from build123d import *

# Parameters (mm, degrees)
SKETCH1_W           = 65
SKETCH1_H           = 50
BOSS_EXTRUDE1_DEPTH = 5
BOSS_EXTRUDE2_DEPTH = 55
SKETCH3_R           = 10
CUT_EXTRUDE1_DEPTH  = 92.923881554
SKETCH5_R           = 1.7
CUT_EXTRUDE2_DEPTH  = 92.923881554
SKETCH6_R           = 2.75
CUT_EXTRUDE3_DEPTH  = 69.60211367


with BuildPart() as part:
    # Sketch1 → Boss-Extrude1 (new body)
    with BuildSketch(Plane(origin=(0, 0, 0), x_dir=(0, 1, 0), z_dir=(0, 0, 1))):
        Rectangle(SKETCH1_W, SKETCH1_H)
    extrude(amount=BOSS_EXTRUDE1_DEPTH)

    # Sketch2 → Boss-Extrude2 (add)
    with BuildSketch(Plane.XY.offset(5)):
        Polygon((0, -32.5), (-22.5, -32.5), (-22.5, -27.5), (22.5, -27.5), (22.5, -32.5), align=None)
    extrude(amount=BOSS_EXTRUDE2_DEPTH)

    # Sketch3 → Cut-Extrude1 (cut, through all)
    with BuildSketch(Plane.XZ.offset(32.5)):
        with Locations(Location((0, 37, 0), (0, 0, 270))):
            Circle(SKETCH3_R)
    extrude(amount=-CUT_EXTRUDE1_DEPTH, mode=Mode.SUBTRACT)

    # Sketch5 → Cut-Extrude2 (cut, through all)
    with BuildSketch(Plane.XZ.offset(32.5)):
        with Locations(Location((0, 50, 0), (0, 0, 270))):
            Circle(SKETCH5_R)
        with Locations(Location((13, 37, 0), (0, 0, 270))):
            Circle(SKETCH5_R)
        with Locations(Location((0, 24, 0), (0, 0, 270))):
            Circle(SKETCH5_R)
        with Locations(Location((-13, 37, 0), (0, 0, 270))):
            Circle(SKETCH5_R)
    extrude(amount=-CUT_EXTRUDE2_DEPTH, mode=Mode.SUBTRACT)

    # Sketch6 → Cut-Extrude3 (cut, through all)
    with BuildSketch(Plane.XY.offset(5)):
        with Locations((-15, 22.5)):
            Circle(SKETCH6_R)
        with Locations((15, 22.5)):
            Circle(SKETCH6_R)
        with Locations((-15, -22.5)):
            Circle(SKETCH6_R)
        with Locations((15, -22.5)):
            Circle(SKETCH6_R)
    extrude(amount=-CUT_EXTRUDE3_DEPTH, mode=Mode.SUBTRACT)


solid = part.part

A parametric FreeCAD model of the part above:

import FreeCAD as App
import Part
import Sketcher
from FreeCAD import Vector

doc = App.newDocument("Part")
body = doc.addObject("PartDesign::Body", "Body")

# Sketch on XY plane
sketch1 = body.newObject("Sketcher::SketchObject", "Sketch")
sketch1.AttachmentSupport = (doc.getObject("XY_Plane"), [""])
sketch1.MapMode = "FlatFace"
sketch1.addGeometry([
    Part.LineSegment(Vector(-25, -32, 0), Vector(25, -32, 0)),
    Part.LineSegment(Vector(25, -32, 0), Vector(25, 32, 0)),
    Part.LineSegment(Vector(25, 32, 0), Vector(-25, 32, 0)),
    Part.LineSegment(Vector(-25, 32, 0), Vector(-25, -32, 0)),
], False)
sketch1.addConstraint([
    Sketcher.Constraint("Coincident", 0, 2, 1, 1),
    Sketcher.Constraint("Coincident", 1, 2, 2, 1),
    Sketcher.Constraint("Coincident", 2, 2, 3, 1),
    Sketcher.Constraint("Coincident", 3, 2, 0, 1),
    Sketcher.Constraint("Horizontal", 0),
    Sketcher.Constraint("Vertical", 1),
    Sketcher.Constraint("Horizontal", 2),
    Sketcher.Constraint("Vertical", 3),
    Sketcher.Constraint("Symmetric", 0, 2, 2, 2, -1, 1),
    Sketcher.Constraint("DistanceX", 0, 1, 0, 2, 50.0),
    Sketcher.Constraint("DistanceY", 1, 1, 1, 2, 65.0),
])
pad1 = body.newObject("PartDesign::Pad", "Pad")
pad1.Profile = sketch1
pad1.Length = 5

# Sketch on XY plane
sketch2 = body.newObject("Sketcher::SketchObject", "Sketch001")
sketch2.AttachmentSupport = (doc.getObject("XY_Plane"), [""])
sketch2.MapMode = "FlatFace"
sketch2.AttachmentOffset = App.Placement(Vector(0, 0, 5), App.Rotation())
sketch2.addGeometry([
    Part.LineSegment(Vector(-22, -32, 0), Vector(22, -32, 0)),
    Part.LineSegment(Vector(22, -32, 0), Vector(22, -28, 0)),
    Part.LineSegment(Vector(22, -28, 0), Vector(-22, -28, 0)),
    Part.LineSegment(Vector(-22, -28, 0), Vector(-22, -32, 0)),
], False)
sketch2.addConstraint([
    Sketcher.Constraint("Coincident", 0, 2, 1, 1),
    Sketcher.Constraint("Coincident", 1, 2, 2, 1),
    Sketcher.Constraint("Coincident", 2, 2, 3, 1),
    Sketcher.Constraint("Coincident", 3, 2, 0, 1),
    Sketcher.Constraint("Horizontal", 0),
    Sketcher.Constraint("Vertical", 1),
    Sketcher.Constraint("Horizontal", 2),
    Sketcher.Constraint("Vertical", 3),
    Sketcher.Constraint("DistanceX", 0, 1, 0, 2, 45.0),
    Sketcher.Constraint("DistanceY", 1, 1, 1, 2, 5.0),
    Sketcher.Constraint("DistanceX", -1, 1, 0, 2, 22.5),
    Sketcher.Constraint("DistanceY", 0, 2, -1, 1, 32.5),
])
pad2 = body.newObject("PartDesign::Pad", "Pad001")
pad2.Profile = sketch2
pad2.Length = 55

# Sketch on XZ plane
sketch3 = body.newObject("Sketcher::SketchObject", "Sketch002")
sketch3.AttachmentSupport = (doc.getObject("XZ_Plane"), [""])
sketch3.MapMode = "FlatFace"
sketch3.AttachmentOffset = App.Placement(Vector(0, 0, 32.5), App.Rotation())
sketch3.addGeometry(Part.Circle(Vector(0, 37, 0), Vector(0, 0, 1), 10), False)
sketch3.addConstraint([
    Sketcher.Constraint("PointOnObject", 0, 3, -2),
    Sketcher.Constraint("Diameter", 0, 20.0),
    Sketcher.Constraint("DistanceY", -1, 1, 0, 3, 37.0),
])
pocket1 = body.newObject("PartDesign::Pocket", "Pocket")
pocket1.Profile = sketch3
pocket1.Type = "ThroughAll"

# Sketch on XZ plane
sketch4 = body.newObject("Sketcher::SketchObject", "Sketch003")
sketch4.AttachmentSupport = (doc.getObject("XZ_Plane"), [""])
sketch4.MapMode = "FlatFace"
sketch4.AttachmentOffset = App.Placement(Vector(0, 0, 32.5), App.Rotation())
sketch4.addGeometry([
    Part.Circle(Vector(0, 50, 0), Vector(0, 0, 1), 1.7),
    Part.Circle(Vector(13, 37, 0), Vector(0, 0, 1), 1.7),
    Part.Circle(Vector(0, 24, 0), Vector(0, 0, 1), 1.7),
    Part.Circle(Vector(-13, 37, 0), Vector(0, 0, 1), 1.7),
], False)
sketch4.addConstraint([
    Sketcher.Constraint("Equal", 0, 1),
    Sketcher.Constraint("Equal", 1, 2),
    Sketcher.Constraint("Equal", 2, 3),
    Sketcher.Constraint("Symmetric", 1, 3, 3, 3, -2),
    Sketcher.Constraint("PointOnObject", 0, 3, -2),
    Sketcher.Constraint("PointOnObject", 2, 3, -2),
    Sketcher.Constraint("Diameter", 0, 3.4),
    Sketcher.Constraint("DistanceY", -1, 1, 0, 3, 50.0),
    Sketcher.Constraint("DistanceX", -1, 1, 1, 3, 13.0),
    Sketcher.Constraint("DistanceY", -1, 1, 1, 3, 37.0),
    Sketcher.Constraint("DistanceY", -1, 1, 2, 3, 24.0),
])
pocket2 = body.newObject("PartDesign::Pocket", "Pocket001")
pocket2.Profile = sketch4
pocket2.Type = "ThroughAll"

# Sketch on XY plane
sketch5 = body.newObject("Sketcher::SketchObject", "Sketch004")
sketch5.AttachmentSupport = (doc.getObject("XY_Plane"), [""])
sketch5.MapMode = "FlatFace"
sketch5.AttachmentOffset = App.Placement(Vector(0, 0, 5), App.Rotation())
sketch5.addGeometry([
    Part.Circle(Vector(-15, 22.5, 0), Vector(0, 0, 1), 2.8),
    Part.Circle(Vector(15, 22.5, 0), Vector(0, 0, 1), 2.8),
    Part.Circle(Vector(-15, -22.5, 0), Vector(0, 0, 1), 2.8),
    Part.Circle(Vector(15, -22.5, 0), Vector(0, 0, 1), 2.8),
], False)
sketch5.addConstraint([
    Sketcher.Constraint("Equal", 0, 1),
    Sketcher.Constraint("Equal", 1, 2),
    Sketcher.Constraint("Equal", 2, 3),
    Sketcher.Constraint("Symmetric", 1, 3, 2, 3, -1, 1),
    Sketcher.Constraint("Symmetric", 0, 3, 3, 3, -1, 1),
    Sketcher.Constraint("Symmetric", 0, 3, 1, 3, -2),
    Sketcher.Constraint("Diameter", 0, 5.5),
    Sketcher.Constraint("DistanceX", 0, 3, -1, 1, 15.0),
    Sketcher.Constraint("DistanceY", 2, 3, 0, 3, 45.0),
])
pocket3 = body.newObject("PartDesign::Pocket", "Pocket002")
pocket3.Profile = sketch5
pocket3.Type = "ThroughAll"

doc.recompute()
